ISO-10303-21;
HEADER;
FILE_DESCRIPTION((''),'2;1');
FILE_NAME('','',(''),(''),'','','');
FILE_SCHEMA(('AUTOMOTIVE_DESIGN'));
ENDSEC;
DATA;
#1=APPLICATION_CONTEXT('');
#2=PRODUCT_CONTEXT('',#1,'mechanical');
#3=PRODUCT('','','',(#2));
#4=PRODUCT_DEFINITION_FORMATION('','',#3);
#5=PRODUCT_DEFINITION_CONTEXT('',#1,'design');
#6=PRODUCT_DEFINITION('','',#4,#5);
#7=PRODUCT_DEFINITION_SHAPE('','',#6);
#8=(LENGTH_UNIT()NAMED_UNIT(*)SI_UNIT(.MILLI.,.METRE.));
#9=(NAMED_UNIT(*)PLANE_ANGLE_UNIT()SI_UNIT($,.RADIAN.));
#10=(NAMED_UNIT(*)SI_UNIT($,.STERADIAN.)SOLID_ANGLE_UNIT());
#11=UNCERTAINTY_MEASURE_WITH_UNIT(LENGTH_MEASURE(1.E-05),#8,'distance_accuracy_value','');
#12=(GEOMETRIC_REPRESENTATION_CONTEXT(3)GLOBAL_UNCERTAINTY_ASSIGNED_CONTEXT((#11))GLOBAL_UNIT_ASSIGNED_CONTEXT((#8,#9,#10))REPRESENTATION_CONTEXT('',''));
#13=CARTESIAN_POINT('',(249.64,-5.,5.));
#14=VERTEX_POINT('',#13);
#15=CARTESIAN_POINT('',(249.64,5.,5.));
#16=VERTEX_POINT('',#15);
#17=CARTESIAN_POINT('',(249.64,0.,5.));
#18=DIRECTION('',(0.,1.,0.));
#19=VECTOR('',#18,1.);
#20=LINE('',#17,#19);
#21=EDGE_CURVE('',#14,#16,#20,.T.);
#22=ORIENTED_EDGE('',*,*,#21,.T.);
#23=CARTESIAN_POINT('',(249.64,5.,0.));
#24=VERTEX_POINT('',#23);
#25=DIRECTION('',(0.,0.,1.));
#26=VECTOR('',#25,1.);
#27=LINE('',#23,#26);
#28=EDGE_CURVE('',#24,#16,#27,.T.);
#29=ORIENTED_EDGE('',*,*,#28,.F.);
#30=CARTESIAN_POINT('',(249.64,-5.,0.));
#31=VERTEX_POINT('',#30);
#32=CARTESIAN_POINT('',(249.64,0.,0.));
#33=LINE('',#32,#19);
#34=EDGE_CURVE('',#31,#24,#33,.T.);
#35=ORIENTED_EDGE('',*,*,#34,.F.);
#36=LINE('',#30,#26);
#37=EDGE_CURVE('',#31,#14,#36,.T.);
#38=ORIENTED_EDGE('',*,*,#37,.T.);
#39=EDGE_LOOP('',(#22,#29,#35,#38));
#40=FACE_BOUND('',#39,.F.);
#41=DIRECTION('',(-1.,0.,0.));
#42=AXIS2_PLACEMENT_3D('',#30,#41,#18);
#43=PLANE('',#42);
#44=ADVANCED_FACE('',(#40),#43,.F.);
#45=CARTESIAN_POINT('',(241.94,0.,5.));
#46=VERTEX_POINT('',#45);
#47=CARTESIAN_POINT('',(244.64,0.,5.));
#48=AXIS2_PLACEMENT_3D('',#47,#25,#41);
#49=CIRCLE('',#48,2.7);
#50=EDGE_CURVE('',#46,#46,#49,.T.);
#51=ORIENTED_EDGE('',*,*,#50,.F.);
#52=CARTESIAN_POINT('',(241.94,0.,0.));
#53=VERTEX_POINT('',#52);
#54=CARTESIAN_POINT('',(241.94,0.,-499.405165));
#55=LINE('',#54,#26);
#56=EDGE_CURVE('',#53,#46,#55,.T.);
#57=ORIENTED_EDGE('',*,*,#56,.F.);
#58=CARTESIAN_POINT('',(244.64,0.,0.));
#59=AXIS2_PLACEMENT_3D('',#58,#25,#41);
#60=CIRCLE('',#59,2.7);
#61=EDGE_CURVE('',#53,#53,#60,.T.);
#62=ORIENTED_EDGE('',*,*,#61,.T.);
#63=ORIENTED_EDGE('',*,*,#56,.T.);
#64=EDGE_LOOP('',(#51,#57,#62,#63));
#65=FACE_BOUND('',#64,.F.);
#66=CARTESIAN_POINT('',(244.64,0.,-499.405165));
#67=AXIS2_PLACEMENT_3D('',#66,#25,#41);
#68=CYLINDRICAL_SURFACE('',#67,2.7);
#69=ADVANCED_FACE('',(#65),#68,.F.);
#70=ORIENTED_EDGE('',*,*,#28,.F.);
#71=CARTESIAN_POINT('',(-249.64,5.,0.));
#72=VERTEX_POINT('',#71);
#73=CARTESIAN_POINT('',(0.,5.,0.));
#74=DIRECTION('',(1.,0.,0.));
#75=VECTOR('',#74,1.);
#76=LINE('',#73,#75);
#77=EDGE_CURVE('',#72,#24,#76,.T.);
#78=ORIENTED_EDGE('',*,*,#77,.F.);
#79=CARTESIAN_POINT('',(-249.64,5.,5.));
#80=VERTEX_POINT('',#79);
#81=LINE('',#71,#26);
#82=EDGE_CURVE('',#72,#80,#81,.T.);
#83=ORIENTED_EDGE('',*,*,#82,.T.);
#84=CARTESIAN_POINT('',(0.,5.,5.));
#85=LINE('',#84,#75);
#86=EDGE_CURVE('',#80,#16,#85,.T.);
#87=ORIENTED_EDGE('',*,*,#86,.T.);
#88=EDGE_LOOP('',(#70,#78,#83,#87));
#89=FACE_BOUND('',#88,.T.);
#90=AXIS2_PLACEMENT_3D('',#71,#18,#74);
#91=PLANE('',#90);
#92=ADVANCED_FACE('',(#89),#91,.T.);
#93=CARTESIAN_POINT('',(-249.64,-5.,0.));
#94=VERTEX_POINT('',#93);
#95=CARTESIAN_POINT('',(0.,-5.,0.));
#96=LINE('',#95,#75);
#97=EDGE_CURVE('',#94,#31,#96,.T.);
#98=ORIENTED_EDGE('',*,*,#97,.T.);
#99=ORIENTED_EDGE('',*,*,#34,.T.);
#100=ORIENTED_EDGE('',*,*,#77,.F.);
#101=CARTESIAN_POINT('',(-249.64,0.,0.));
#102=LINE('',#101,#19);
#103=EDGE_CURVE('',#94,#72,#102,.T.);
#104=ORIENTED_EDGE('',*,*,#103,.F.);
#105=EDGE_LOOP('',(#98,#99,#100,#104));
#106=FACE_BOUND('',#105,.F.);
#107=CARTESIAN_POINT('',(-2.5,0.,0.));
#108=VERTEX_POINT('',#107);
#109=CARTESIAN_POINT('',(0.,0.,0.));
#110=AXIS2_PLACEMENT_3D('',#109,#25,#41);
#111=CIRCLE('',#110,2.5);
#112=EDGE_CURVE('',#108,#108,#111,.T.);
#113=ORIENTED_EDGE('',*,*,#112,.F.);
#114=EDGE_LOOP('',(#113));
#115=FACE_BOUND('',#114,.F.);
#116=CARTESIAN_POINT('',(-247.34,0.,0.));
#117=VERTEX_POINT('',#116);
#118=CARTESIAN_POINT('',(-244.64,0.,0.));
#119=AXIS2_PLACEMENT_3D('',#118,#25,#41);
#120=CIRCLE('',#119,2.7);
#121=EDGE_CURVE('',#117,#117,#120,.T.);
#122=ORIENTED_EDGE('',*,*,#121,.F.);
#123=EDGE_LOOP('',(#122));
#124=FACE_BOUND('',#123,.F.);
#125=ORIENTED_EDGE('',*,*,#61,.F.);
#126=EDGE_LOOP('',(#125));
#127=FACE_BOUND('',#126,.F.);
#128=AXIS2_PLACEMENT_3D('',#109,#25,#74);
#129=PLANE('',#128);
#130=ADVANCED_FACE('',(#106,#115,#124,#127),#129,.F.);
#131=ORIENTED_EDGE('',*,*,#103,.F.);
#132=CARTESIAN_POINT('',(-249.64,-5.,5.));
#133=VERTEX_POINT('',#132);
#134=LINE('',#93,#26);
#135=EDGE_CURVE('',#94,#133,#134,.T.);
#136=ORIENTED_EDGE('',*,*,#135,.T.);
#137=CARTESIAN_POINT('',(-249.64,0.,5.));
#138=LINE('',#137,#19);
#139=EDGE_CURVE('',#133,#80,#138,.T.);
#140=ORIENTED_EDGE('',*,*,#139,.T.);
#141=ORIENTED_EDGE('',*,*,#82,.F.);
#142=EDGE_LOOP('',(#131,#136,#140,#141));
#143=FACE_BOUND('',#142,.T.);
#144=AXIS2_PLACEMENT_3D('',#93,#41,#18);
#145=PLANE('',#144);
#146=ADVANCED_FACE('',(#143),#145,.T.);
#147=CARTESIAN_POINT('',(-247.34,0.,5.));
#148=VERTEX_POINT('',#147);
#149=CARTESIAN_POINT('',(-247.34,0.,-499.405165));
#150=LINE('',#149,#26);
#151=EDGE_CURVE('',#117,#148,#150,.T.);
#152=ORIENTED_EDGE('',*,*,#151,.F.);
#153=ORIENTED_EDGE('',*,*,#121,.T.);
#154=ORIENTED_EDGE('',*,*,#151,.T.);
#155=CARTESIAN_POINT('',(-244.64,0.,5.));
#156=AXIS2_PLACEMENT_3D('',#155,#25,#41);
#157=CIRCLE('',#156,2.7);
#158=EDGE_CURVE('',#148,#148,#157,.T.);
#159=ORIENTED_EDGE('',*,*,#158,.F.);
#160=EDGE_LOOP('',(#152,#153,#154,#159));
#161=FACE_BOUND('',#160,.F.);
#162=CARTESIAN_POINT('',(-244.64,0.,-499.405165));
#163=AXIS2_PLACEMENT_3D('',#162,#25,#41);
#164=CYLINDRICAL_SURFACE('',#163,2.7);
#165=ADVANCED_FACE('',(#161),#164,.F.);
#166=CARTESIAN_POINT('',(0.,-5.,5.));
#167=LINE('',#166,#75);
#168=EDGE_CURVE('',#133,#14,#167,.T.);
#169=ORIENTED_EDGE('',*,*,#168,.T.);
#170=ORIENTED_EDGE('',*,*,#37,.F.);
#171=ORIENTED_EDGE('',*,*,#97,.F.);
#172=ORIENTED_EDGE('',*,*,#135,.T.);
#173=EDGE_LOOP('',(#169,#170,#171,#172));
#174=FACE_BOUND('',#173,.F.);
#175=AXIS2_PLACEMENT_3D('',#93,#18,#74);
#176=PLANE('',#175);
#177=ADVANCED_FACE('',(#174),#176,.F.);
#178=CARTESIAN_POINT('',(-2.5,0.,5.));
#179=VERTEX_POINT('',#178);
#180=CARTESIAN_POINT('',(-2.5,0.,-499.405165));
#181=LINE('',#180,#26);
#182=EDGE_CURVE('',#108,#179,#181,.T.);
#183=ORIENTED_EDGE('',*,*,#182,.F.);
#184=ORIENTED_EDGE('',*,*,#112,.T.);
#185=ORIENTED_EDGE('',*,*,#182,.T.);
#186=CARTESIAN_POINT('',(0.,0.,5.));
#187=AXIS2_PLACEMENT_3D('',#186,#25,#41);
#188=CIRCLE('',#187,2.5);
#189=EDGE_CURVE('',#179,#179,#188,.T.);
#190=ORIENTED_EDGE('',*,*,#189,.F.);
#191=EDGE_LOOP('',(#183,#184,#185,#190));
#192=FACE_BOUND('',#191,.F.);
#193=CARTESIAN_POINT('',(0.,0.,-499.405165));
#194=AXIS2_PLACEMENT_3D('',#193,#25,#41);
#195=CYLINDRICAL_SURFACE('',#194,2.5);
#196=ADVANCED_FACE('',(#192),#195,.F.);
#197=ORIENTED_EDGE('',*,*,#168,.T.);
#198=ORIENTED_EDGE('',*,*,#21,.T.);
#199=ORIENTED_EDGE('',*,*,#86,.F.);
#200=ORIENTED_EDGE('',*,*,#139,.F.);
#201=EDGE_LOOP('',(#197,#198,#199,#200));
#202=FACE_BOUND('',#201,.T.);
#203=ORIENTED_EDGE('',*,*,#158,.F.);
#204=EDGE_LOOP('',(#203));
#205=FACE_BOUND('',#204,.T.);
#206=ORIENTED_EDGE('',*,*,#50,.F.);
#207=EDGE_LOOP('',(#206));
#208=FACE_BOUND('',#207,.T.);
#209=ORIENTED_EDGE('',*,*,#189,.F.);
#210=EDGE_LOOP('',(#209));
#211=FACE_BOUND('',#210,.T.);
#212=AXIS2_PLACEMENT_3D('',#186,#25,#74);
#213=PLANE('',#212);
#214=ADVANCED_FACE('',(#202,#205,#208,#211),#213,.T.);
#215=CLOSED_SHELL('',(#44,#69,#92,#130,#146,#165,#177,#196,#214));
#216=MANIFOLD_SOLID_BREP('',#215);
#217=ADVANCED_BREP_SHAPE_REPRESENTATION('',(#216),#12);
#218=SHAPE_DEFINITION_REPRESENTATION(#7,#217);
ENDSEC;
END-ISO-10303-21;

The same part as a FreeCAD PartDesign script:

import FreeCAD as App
import Part
import Sketcher

V = App.Vector


def add_polygon(sketch, points):
    """Adds a closed chain of lines whose ends are joined by coincident constraints."""
    first, n = sketch.GeometryCount, len(points)
    for a, b in zip(points, points[1:] + points[:1]):
        sketch.addGeometry(Part.LineSegment(App.Vector(*a, 0), App.Vector(*b, 0)), False)
    for i in range(n):
        sketch.addConstraint(Sketcher.Constraint("Coincident", first + i, 2, first + (i + 1) % n, 1))

doc = App.newDocument("Part")
body = doc.addObject("PartDesign::Body", "Body")

sketch1 = doc.addObject("Sketcher::SketchObject", "Sketch")
body.addObject(sketch1)
sketch1.AttachmentSupport = (doc.XY_Plane, [""])
sketch1.MapMode = "FlatFace"
add_polygon(sketch1, [(-249.64, 5), (-249.64, -5), (249.64, -5), (249.64, 5)])
sketch1.addConstraint(Sketcher.Constraint("Vertical", 0))
sketch1.addConstraint(Sketcher.Constraint("Horizontal", 1))
sketch1.addConstraint(Sketcher.Constraint("Vertical", 2))
sketch1.addConstraint(Sketcher.Constraint("Horizontal", 3))
sketch1.addConstraint(Sketcher.Constraint("Symmetric", 0, 2, 2, 2, -1, 1))
sketch1.addConstraint(Sketcher.Constraint("DistanceY", 0, 2, 0, 1, 10.0))
sketch1.addConstraint(Sketcher.Constraint("DistanceX", 1, 1, 1, 2, 499.28))
pad1 = doc.addObject("PartDesign::Pad", "Pad")
body.addObject(pad1)
pad1.Profile = sketch1
pad1.Length = 5

sketch2 = doc.addObject("Sketcher::SketchObject", "Sketch001")
body.addObject(sketch2)
sketch2.AttachmentSupport = (doc.XY_Plane, [""])
sketch2.MapMode = "FlatFace"
sketch2.addGeometry(Part.Circle(V(-244.64, 0, 0), V(0, 0, 1), 2.7), False)
sketch2.addConstraint(Sketcher.Constraint("PointOnObject", 0, 3, -1))
sketch2.addConstraint(Sketcher.Constraint("Diameter", 0, 5.4))
sketch2.addConstraint(Sketcher.Constraint("DistanceX", 0, 3, -1, 1, 244.64))
doc.recompute()
hole = doc.addObject("PartDesign::Hole", "Hole")
body.addObject(hole)
hole.Profile = sketch2
hole.ThreadType = "None"
hole.Diameter = 5.4
hole.DepthType = "ThroughAll"
hole.Reversed = True

sketch3 = doc.addObject("Sketcher::SketchObject", "Sketch002")
body.addObject(sketch3)
sketch3.AttachmentSupport = (doc.XY_Plane, [""])
sketch3.MapMode = "FlatFace"
sketch3.addGeometry(Part.Circle(V(0, 0, 0), V(0, 0, 1), 2.5), False)
sketch3.addConstraint(Sketcher.Constraint("Coincident", 0, 3, -1, 1))
sketch3.addConstraint(Sketcher.Constraint("Diameter", 0, 5.0))
doc.recompute()
hole2 = doc.addObject("PartDesign::Hole", "Hole001")
body.addObject(hole2)
hole2.Profile = sketch3
hole2.ThreadType = "None"
hole2.Diameter = 5
hole2.DepthType = "ThroughAll"
hole2.Reversed = True

sketch4 = doc.addObject("Sketcher::SketchObject", "Sketch003")
body.addObject(sketch4)
sketch4.AttachmentSupport = (doc.XY_Plane, [""])
sketch4.MapMode = "FlatFace"
sketch4.addGeometry(Part.Circle(V(244.64, 0, 0), V(0, 0, 1), 2.7), False)
sketch4.addConstraint(Sketcher.Constraint("PointOnObject", 0, 3, -1))
sketch4.addConstraint(Sketcher.Constraint("Diameter", 0, 5.4))
sketch4.addConstraint(Sketcher.Constraint("DistanceX", -1, 1, 0, 3, 244.64))
doc.recompute()
hole3 = doc.addObject("PartDesign::Hole", "Hole002")
body.addObject(hole3)
hole3.Profile = sketch4
hole3.ThreadType = "None"
hole3.Diameter = 5.4
hole3.DepthType = "ThroughAll"
hole3.Reversed = True

doc.recompute()
